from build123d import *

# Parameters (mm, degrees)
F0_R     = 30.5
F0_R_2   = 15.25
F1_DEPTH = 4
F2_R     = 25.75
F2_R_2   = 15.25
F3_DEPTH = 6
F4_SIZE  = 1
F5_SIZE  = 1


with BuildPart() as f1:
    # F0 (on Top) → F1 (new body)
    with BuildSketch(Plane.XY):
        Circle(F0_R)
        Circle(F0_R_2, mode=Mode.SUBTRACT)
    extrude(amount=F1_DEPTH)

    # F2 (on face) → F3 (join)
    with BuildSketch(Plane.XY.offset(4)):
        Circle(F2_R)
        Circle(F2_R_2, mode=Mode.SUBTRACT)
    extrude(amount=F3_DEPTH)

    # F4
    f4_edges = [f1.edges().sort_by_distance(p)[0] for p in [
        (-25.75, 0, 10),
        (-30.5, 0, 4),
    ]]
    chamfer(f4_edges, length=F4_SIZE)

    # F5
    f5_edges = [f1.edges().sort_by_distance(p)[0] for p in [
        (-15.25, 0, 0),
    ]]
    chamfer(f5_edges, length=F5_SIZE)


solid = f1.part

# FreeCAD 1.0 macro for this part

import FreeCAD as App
import Part
import Sketcher

V = App.Vector


def edges_at(feature, points):
    """Names of the edges that pass closest to the given points."""
    edges = feature.Shape.Edges
    near = lambda p: min(range(len(edges)), key=lambda i: edges[i].distToShape(Part.Vertex(*p))[0])
    return sorted({f"Edge{near(p) + 1}" for p in points})

doc = App.newDocument("Part")
body = doc.addObject("PartDesign::Body", "Body")

sketch1 = body.newObject("Sketcher::SketchObject", "Sketch")
sketch1.AttachmentSupport = (doc.getObject("XY_Plane"), [""])
sketch1.MapMode = "FlatFace"
sketch1.addGeometry(Part.Circle(V(0, 0, 0), V(0, 0, 1), 30.5), False)
sketch1.addGeometry(Part.Circle(V(0, 0, 0), V(0, 0, 1), 15.25), False)
sketch1.addConstraint(Sketcher.Constraint("Coincident", 0, 3, -1, 1))
sketch1.addConstraint(Sketcher.Constraint("Coincident", 1, 3, -1, 1))
sketch1.addConstraint(Sketcher.Constraint("Diameter", 0, 61.0))
sketch1.addConstraint(Sketcher.Constraint("Diameter", 1, 30.5))
pad1 = body.newObject("PartDesign::Pad", "Pad")
pad1.Profile = sketch1
pad1.Length = 4

sketch2 = body.newObject("Sketcher::SketchObject", "Sketch001")
sketch2.AttachmentSupport = (doc.getObject("XY_Plane"), [""])
sketch2.MapMode = "FlatFace"
sketch2.AttachmentOffset = App.Placement(V(0, 0, 4), App.Rotation())
sketch2.addGeometry(Part.Circle(V(0, 0, 0), V(0, 0, 1), 25.75), False)
sketch2.addGeometry(Part.Circle(V(0, 0, 0), V(0, 0, 1), 15.25), False)
sketch2.addConstraint(Sketcher.Constraint("Coincident", 0, 3, -1, 1))
sketch2.addConstraint(Sketcher.Constraint("Coincident", 1, 3, -1, 1))
sketch2.addConstraint(Sketcher.Constraint("Diameter", 0, 51.5))
sketch2.addConstraint(Sketcher.Constraint("Diameter", 1, 30.5))
pad2 = body.newObject("PartDesign::Pad", "Pad001")
pad2.Profile = sketch2
pad2.Length = 6
doc.recompute()

chamfer = body.newObject("PartDesign::Chamfer", "Chamfer")
chamfer.Base = (pad2, edges_at(pad2, [(-25.75, 0, 10), (-30.5, 0, 4)]))
chamfer.Size = 1
doc.recompute()

chamfer2 = body.newObject("PartDesign::Chamfer", "Chamfer001")
chamfer2.Base = (chamfer, edges_at(chamfer, [(-15.25, 0, 0)]))
chamfer2.Size = 1

doc.recompute()
